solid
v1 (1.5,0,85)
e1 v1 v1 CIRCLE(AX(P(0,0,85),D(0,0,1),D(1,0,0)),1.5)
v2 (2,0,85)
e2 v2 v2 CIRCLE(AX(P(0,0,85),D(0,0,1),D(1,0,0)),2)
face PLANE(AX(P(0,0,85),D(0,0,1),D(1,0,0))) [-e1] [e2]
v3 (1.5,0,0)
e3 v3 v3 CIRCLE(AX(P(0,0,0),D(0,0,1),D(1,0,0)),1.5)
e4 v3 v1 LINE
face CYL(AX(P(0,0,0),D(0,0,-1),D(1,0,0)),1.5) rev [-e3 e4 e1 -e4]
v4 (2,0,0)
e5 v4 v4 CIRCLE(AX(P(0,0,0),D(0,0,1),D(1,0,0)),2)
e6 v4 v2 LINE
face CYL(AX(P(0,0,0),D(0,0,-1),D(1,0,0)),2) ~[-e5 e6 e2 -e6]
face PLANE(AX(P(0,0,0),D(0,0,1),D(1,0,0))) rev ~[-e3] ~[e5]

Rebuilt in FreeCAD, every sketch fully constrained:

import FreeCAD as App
import Part
import Sketcher

V = App.Vector
Q = App.Units.Quantity

doc = App.newDocument("Part")
body = doc.addObject("PartDesign::Body", "Body")

sketch1 = body.newObject("Sketcher::SketchObject", "Sketch")
sketch1.AttachmentSupport = (doc.getObject("XY_Plane"), [""])
sketch1.MapMode = "FlatFace"
sketch1.addGeometry([
    Part.Circle(V(0, 0, 0), V(0, 0, 1), 2),
    Part.Circle(V(0, 0, 0), V(0, 0, 1), 1.5),
], False)
sketch1.addConstraint([
    Sketcher.Constraint("Coincident", 0, 3, -1, 1),
    Sketcher.Constraint("Coincident", 1, 3, -1, 1),
    Sketcher.Constraint("Diameter", 0, Q("4 mm")),
    Sketcher.Constraint("Diameter", 1, Q("3 mm")),
])
pad1 = body.newObject("PartDesign::Pad", "Pad")
pad1.Profile = sketch1
pad1.Length = 85

doc.recompute()
